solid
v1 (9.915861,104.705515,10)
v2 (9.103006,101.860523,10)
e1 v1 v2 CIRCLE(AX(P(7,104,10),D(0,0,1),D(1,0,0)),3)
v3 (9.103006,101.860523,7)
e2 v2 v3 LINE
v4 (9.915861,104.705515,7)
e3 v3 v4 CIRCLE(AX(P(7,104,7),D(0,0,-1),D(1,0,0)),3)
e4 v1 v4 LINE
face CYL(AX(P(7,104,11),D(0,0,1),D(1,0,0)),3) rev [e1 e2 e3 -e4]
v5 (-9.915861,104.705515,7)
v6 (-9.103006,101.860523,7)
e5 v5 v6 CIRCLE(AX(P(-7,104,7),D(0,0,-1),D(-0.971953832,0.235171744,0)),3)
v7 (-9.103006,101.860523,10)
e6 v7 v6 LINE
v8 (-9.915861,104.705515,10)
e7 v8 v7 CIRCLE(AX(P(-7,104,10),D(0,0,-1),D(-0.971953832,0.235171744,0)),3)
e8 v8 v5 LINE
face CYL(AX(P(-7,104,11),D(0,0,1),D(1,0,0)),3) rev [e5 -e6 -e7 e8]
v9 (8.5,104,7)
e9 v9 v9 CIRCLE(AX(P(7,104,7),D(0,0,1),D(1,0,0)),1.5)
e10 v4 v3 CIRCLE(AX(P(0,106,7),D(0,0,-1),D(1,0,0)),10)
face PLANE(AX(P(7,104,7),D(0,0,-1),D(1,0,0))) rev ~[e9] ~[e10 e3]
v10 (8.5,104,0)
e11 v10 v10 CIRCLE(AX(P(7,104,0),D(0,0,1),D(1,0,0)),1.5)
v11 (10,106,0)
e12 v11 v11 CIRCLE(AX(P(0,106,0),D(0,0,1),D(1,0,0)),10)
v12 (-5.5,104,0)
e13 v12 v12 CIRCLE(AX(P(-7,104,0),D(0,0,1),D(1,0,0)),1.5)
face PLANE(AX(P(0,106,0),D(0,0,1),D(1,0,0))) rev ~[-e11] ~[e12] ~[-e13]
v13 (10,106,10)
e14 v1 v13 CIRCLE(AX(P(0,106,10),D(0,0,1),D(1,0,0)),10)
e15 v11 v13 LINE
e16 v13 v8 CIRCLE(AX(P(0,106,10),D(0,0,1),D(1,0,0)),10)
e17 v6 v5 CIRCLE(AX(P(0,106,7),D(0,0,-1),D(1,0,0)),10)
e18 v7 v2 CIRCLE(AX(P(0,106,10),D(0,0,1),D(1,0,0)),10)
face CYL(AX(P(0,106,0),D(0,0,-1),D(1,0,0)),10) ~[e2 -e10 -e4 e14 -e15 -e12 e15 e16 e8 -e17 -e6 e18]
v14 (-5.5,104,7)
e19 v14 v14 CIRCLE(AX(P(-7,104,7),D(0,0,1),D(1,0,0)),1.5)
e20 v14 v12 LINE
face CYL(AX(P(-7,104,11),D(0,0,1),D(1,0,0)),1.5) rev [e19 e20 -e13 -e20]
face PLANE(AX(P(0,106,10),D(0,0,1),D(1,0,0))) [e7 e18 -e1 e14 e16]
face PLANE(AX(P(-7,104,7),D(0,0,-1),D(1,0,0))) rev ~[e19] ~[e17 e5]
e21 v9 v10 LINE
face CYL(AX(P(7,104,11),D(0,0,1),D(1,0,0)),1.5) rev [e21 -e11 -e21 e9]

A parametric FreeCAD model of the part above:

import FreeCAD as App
import Part
import Sketcher
Q = App.Units.Quantity

doc = App.newDocument("Part")
params = doc.addObject("Spreadsheet::Sheet", "Params")
for row, (alias, value) in enumerate([
    ("sketch1_diameter", "6 mm"),
    ("pad1_length", "4 mm"),
    ("sketch2_diameter", "6 mm"),
    ("pad2_length", "4 mm"),
    ("sketch3_diameter", "6 mm"),
    ("pad3_length", "4 mm"),
    ("sketch4_diameter", "6 mm"),
    ("pad4_length", "4 mm"),
    ("sketch5_diameter", "3 mm"),
    ("pad5_length", "20 mm"),
    ("sketch6_diameter", "3 mm"),
    ("pad6_length", "20 mm"),
    ("sketch7_diameter", "3 mm"),
    ("pad7_length", "20 mm"),
    ("sketch8_diameter", "3 mm"),
    ("pad8_length", "20 mm"),
    ("sketch9_diameter", "20 mm"),
    ("pad9_length", "10 mm"),
], start=1):
    params.set(f"A{row}", alias)
    params.set(f"B{row}", "=" + value)
    params.setAlias(f"B{row}", alias)

body = doc.addObject("PartDesign::Body", "Body")

sketch1 = body.newObject("Sketcher::SketchObject", "Sketch")
sketch1.AttachmentSupport = (doc.getObject("XZ_Plane"), [""])
sketch1.MapMode = "FlatFace"
sketch1.AttachmentOffset = App.Placement(App.Vector(0, 0, 34), App.Rotation())
sketch1.addGeometry(Part.Circle(App.Vector(-7, 37, 0), App.Vector(0, 0, 1), 3), False)
sketch1.addConstraint(Sketcher.Constraint("Diameter", 0, Q("6 mm")))
sketch1.addConstraint(Sketcher.Constraint("DistanceX", 0, 3, -1, 1, Q("7 mm")))
sketch1.addConstraint(Sketcher.Constraint("DistanceY", -1, 1, 0, 3, Q("37 mm")))
sketch1.setExpression("Constraints[0]", "Params.sketch1_diameter")
pad1 = body.newObject("PartDesign::Pad", "Pad")
pad1.Profile = sketch1
pad1.setExpression("Length", "Params.pad1_length")
body2 = doc.addObject("PartDesign::Body", "Body001")

sketch2 = body2.newObject("Sketcher::SketchObject", "Sketch001")
sketch2.AttachmentSupport = (doc.getObject("XZ_Plane001"), [""])
sketch2.MapMode = "FlatFace"
sketch2.AttachmentOffset = App.Placement(App.Vector(0, 0, 34), App.Rotation())
sketch2.addGeometry(Part.Circle(App.Vector(7, 73, 0), App.Vector(0, 0, 1), 3), False)
sketch2.addConstraint(Sketcher.Constraint("Diameter", 0, Q("6 mm")))
sketch2.addConstraint(Sketcher.Constraint("DistanceX", -1, 1, 0, 3, Q("7 mm")))
sketch2.addConstraint(Sketcher.Constraint("DistanceY", -1, 1, 0, 3, Q("73 mm")))
sketch2.setExpression("Constraints[0]", "Params.sketch2_diameter")
pad2 = body2.newObject("PartDesign::Pad", "Pad001")
pad2.Profile = sketch2
pad2.setExpression("Length", "Params.pad2_length")
body3 = doc.addObject("PartDesign::Body", "Body002")

sketch3 = body3.newObject("Sketcher::SketchObject", "Sketch002")
sketch3.AttachmentSupport = (doc.getObject("XZ_Plane002"), [""])
sketch3.MapMode = "FlatFace"
sketch3.AttachmentOffset = App.Placement(App.Vector(0, 0, 34), App.Rotation())
sketch3.addGeometry(Part.Circle(App.Vector(-7, 73, 0), App.Vector(0, 0, 1), 3), False)
sketch3.addConstraint(Sketcher.Constraint("Diameter", 0, Q("6 mm")))
sketch3.addConstraint(Sketcher.Constraint("DistanceX", 0, 3, -1, 1, Q("7 mm")))
sketch3.addConstraint(Sketcher.Constraint("DistanceY", -1, 1, 0, 3, Q("73 mm")))
sketch3.setExpression("Constraints[0]", "Params.sketch3_diameter")
pad3 = body3.newObject("PartDesign::Pad", "Pad002")
pad3.Profile = sketch3
pad3.setExpression("Length", "Params.pad3_length")
body4 = doc.addObject("PartDesign::Body", "Body003")
body4.AllowCompound = True

sketch4 = body4.newObject("Sketcher::SketchObject", "Sketch003")
sketch4.AttachmentSupport = (doc.getObject("XZ_Plane003"), [""])
sketch4.MapMode = "FlatFace"
sketch4.AttachmentOffset = App.Placement(App.Vector(0, 0, 34), App.Rotation())
sketch4.addGeometry(Part.Circle(App.Vector(7, 37, 0), App.Vector(0, 0, 1), 3), False)
sketch4.addConstraint(Sketcher.Constraint("Diameter", 0, Q("6 mm")))
sketch4.addConstraint(Sketcher.Constraint("DistanceX", -1, 1, 0, 3, Q("7 mm")))
sketch4.addConstraint(Sketcher.Constraint("DistanceY", -1, 1, 0, 3, Q("37 mm")))
sketch4.setExpression("Constraints[0]", "Params.sketch4_diameter")
pad4 = body4.newObject("PartDesign::Pad", "Pad003")
pad4.Profile = sketch4
pad4.setExpression("Length", "Params.pad4_length")
doc.recompute()

boolean = body4.newObject("PartDesign::Boolean", "Boolean")
boolean.Type = "Fuse"
boolean.addObjects([body])
doc.recompute()

boolean2 = body4.newObject("PartDesign::Boolean", "Boolean001")
boolean2.Type = "Fuse"
boolean2.addObjects([body2])
doc.recompute()

boolean3 = body4.newObject("PartDesign::Boolean", "Boolean002")
boolean3.Type = "Fuse"
boolean3.addObjects([body3])
body5 = doc.addObject("PartDesign::Body", "Body004")
body5.AllowCompound = True
doc.recompute()

body4.Placement = App.Placement(App.Vector(0, 141, 45), App.Rotation(App.Vector(1, 0, 0), 90))
boolean4 = body5.newObject("PartDesign::Boolean", "Boolean003")
boolean4.Type = "Fuse"
boolean4.addObjects([body4])
body6 = doc.addObject("PartDesign::Body", "Body005")

sketch5 = body6.newObject("Sketcher::SketchObject", "Sketch004")
sketch5.AttachmentSupport = (doc.getObject("XZ_Plane005"), [""])
sketch5.MapMode = "FlatFace"
sketch5.AttachmentOffset = App.Placement(App.Vector(0, 0, 34), App.Rotation())
sketch5.addGeometry(Part.Circle(App.Vector(-7, 37, 0), App.Vector(0, 0, 1), 1.5), False)
sketch5.addConstraint(Sketcher.Constraint("Diameter", 0, Q("3 mm")))
sketch5.addConstraint(Sketcher.Constraint("DistanceX", 0, 3, -1, 1, Q("7 mm")))
sketch5.addConstraint(Sketcher.Constraint("DistanceY", -1, 1, 0, 3, Q("37 mm")))
sketch5.setExpression("Constraints[0]", "Params.sketch5_diameter")
pad5 = body6.newObject("PartDesign::Pad", "Pad004")
pad5.Profile = sketch5
pad5.setExpression("Length", "Params.pad5_length")
body7 = doc.addObject("PartDesign::Body", "Body006")

sketch6 = body7.newObject("Sketcher::SketchObject", "Sketch005")
sketch6.AttachmentSupport = (doc.getObject("XZ_Plane006"), [""])
sketch6.MapMode = "FlatFace"
sketch6.AttachmentOffset = App.Placement(App.Vector(0, 0, 34), App.Rotation())
sketch6.addGeometry(Part.Circle(App.Vector(7, 73, 0), App.Vector(0, 0, 1), 1.5), False)
sketch6.addConstraint(Sketcher.Constraint("Diameter", 0, Q("3 mm")))
sketch6.addConstraint(Sketcher.Constraint("DistanceX", -1, 1, 0, 3, Q("7 mm")))
sketch6.addConstraint(Sketcher.Constraint("DistanceY", -1, 1, 0, 3, Q("73 mm")))
sketch6.setExpression("Constraints[0]", "Params.sketch6_diameter")
pad6 = body7.newObject("PartDesign::Pad", "Pad005")
pad6.Profile = sketch6
pad6.setExpression("Length", "Params.pad6_length")
body8 = doc.addObject("PartDesign::Body", "Body007")

sketch7 = body8.newObject("Sketcher::SketchObject", "Sketch006")
sketch7.AttachmentSupport = (doc.getObject("XZ_Plane007"), [""])
sketch7.MapMode = "FlatFace"
sketch7.AttachmentOffset = App.Placement(App.Vector(0, 0, 34), App.Rotation())
sketch7.addGeometry(Part.Circle(App.Vector(-7, 73, 0), App.Vector(0, 0, 1), 1.5), False)
sketch7.addConstraint(Sketcher.Constraint("Diameter", 0, Q("3 mm")))
sketch7.addConstraint(Sketcher.Constraint("DistanceX", 0, 3, -1, 1, Q("7 mm")))
sketch7.addConstraint(Sketcher.Constraint("DistanceY", -1, 1, 0, 3, Q("73 mm")))
sketch7.setExpression("Constraints[0]", "Params.sketch7_diameter")
pad7 = body8.newObject("PartDesign::Pad", "Pad006")
pad7.Profile = sketch7
pad7.setExpression("Length", "Params.pad7_length")
body9 = doc.addObject("PartDesign::Body", "Body008")
body9.AllowCompound = True

sketch8 = body9.newObject("Sketcher::SketchObject", "Sketch007")
sketch8.AttachmentSupport = (doc.getObject("XZ_Plane008"), [""])
sketch8.MapMode = "FlatFace"
sketch8.AttachmentOffset = App.Placement(App.Vector(0, 0, 34), App.Rotation())
sketch8.addGeometry(Part.Circle(App.Vector(7, 37, 0), App.Vector(0, 0, 1), 1.5), False)
sketch8.addConstraint(Sketcher.Constraint("Diameter", 0, Q("3 mm")))
sketch8.addConstraint(Sketcher.Constraint("DistanceX", -1, 1, 0, 3, Q("7 mm")))
sketch8.addConstraint(Sketcher.Constraint("DistanceY", -1, 1, 0, 3, Q("37 mm")))
sketch8.setExpression("Constraints[0]", "Params.sketch8_diameter")
pad8 = body9.newObject("PartDesign::Pad", "Pad007")
pad8.Profile = sketch8
pad8.setExpression("Length", "Params.pad8_length")
doc.recompute()

boolean5 = body9.newObject("PartDesign::Boolean", "Boolean004")
boolean5.Type = "Fuse"
boolean5.addObjects([body6])
doc.recompute()

boolean6 = body9.newObject("PartDesign::Boolean", "Boolean005")
boolean6.Type = "Fuse"
boolean6.addObjects([body7])
doc.recompute()

boolean7 = body9.newObject("PartDesign::Boolean", "Boolean006")
boolean7.Type = "Fuse"
boolean7.addObjects([body8])
body10 = doc.addObject("PartDesign::Body", "Body009")
body10.AllowCompound = True
doc.recompute()

body9.Placement = App.Placement(App.Vector(0, 141, 45), App.Rotation(App.Vector(1, 0, 0), 90))
boolean8 = body10.newObject("PartDesign::Boolean", "Boolean007")
boolean8.Type = "Fuse"
boolean8.addObjects([body9])
body11 = doc.addObject("PartDesign::Body", "Body010")

sketch9 = body11.newObject("Sketcher::SketchObject", "Sketch008")
sketch9.AttachmentSupport = (doc.getObject("XY_Plane010"), [""])
sketch9.MapMode = "FlatFace"
sketch9.addGeometry(Part.Circle(App.Vector(0, 106, 0), App.Vector(0, 0, 1), 10), False)
sketch9.addConstraint(Sketcher.Constraint("PointOnObject", 0, 3, -2))
sketch9.addConstraint(Sketcher.Constraint("Diameter", 0, Q("20 mm")))
sketch9.addConstraint(Sketcher.Constraint("DistanceY", -1, 1, 0, 3, Q("106 mm")))
sketch9.setExpression("Constraints[1]", "Params.sketch9_diameter")
pad9 = body11.newObject("PartDesign::Pad", "Pad008")
pad9.Profile = sketch9
pad9.setExpression("Length", "Params.pad9_length")
doc.recompute()

boolean9 = body11.newObject("PartDesign::Boolean", "Boolean008")
boolean9.Type = "Cut"
boolean9.addObjects([body10])
doc.recompute()

boolean10 = body11.newObject("PartDesign::Boolean", "Boolean009")
boolean10.Type = "Cut"
boolean10.addObjects([body5])

doc.recompute()
